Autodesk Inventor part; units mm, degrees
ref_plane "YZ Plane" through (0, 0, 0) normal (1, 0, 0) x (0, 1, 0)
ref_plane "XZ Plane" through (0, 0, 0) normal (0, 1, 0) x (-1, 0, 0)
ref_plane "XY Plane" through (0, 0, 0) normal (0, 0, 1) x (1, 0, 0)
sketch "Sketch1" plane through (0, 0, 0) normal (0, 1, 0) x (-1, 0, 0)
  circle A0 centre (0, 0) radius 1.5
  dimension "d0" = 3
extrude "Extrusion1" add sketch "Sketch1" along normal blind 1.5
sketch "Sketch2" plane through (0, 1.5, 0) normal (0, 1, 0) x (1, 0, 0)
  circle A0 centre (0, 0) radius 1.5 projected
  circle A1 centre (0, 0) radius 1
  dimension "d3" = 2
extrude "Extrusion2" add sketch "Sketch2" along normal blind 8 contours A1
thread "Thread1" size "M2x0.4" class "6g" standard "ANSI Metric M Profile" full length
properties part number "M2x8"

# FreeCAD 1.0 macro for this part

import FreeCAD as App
import Part
import Sketcher
Q = App.Units.Quantity

doc = App.newDocument("Part")
body = doc.addObject("PartDesign::Body", "Body")

sketch1 = body.newObject("Sketcher::SketchObject", "Sketch")
sketch1.AttachmentSupport = (doc.getObject("XZ_Plane"), [""])
sketch1.MapMode = "FlatFace"
sketch1.addGeometry(Part.Circle(App.Vector(0, 0, 0), App.Vector(0, 0, 1), 1.5), False)
sketch1.addConstraint([
    Sketcher.Constraint("Coincident", 0, 3, -1, 1),
    Sketcher.Constraint("Diameter", 0, Q("3 mm")),
])
pad1 = body.newObject("PartDesign::Pad", "Pad")
pad1.Profile = sketch1
pad1.Length = 1.5
pad1.Reversed = True

sketch2 = body.newObject("Sketcher::SketchObject", "Sketch001")
sketch2.AttachmentSupport = (doc.getObject("XZ_Plane"), [""])
sketch2.MapMode = "FlatFace"
sketch2.AttachmentOffset = App.Placement(App.Vector(0, 0, -1.5), App.Rotation())
sketch2.addGeometry(Part.Circle(App.Vector(0, 0, 0), App.Vector(0, 0, 1), 1), False)
sketch2.addConstraint([
    Sketcher.Constraint("Coincident", 0, 3, -1, 1),
    Sketcher.Constraint("Diameter", 0, Q("2 mm")),
])
pad2 = body.newObject("PartDesign::Pad", "Pad001")
pad2.Profile = sketch2
pad2.Length = 8
pad2.Reversed = True

doc.recompute()
